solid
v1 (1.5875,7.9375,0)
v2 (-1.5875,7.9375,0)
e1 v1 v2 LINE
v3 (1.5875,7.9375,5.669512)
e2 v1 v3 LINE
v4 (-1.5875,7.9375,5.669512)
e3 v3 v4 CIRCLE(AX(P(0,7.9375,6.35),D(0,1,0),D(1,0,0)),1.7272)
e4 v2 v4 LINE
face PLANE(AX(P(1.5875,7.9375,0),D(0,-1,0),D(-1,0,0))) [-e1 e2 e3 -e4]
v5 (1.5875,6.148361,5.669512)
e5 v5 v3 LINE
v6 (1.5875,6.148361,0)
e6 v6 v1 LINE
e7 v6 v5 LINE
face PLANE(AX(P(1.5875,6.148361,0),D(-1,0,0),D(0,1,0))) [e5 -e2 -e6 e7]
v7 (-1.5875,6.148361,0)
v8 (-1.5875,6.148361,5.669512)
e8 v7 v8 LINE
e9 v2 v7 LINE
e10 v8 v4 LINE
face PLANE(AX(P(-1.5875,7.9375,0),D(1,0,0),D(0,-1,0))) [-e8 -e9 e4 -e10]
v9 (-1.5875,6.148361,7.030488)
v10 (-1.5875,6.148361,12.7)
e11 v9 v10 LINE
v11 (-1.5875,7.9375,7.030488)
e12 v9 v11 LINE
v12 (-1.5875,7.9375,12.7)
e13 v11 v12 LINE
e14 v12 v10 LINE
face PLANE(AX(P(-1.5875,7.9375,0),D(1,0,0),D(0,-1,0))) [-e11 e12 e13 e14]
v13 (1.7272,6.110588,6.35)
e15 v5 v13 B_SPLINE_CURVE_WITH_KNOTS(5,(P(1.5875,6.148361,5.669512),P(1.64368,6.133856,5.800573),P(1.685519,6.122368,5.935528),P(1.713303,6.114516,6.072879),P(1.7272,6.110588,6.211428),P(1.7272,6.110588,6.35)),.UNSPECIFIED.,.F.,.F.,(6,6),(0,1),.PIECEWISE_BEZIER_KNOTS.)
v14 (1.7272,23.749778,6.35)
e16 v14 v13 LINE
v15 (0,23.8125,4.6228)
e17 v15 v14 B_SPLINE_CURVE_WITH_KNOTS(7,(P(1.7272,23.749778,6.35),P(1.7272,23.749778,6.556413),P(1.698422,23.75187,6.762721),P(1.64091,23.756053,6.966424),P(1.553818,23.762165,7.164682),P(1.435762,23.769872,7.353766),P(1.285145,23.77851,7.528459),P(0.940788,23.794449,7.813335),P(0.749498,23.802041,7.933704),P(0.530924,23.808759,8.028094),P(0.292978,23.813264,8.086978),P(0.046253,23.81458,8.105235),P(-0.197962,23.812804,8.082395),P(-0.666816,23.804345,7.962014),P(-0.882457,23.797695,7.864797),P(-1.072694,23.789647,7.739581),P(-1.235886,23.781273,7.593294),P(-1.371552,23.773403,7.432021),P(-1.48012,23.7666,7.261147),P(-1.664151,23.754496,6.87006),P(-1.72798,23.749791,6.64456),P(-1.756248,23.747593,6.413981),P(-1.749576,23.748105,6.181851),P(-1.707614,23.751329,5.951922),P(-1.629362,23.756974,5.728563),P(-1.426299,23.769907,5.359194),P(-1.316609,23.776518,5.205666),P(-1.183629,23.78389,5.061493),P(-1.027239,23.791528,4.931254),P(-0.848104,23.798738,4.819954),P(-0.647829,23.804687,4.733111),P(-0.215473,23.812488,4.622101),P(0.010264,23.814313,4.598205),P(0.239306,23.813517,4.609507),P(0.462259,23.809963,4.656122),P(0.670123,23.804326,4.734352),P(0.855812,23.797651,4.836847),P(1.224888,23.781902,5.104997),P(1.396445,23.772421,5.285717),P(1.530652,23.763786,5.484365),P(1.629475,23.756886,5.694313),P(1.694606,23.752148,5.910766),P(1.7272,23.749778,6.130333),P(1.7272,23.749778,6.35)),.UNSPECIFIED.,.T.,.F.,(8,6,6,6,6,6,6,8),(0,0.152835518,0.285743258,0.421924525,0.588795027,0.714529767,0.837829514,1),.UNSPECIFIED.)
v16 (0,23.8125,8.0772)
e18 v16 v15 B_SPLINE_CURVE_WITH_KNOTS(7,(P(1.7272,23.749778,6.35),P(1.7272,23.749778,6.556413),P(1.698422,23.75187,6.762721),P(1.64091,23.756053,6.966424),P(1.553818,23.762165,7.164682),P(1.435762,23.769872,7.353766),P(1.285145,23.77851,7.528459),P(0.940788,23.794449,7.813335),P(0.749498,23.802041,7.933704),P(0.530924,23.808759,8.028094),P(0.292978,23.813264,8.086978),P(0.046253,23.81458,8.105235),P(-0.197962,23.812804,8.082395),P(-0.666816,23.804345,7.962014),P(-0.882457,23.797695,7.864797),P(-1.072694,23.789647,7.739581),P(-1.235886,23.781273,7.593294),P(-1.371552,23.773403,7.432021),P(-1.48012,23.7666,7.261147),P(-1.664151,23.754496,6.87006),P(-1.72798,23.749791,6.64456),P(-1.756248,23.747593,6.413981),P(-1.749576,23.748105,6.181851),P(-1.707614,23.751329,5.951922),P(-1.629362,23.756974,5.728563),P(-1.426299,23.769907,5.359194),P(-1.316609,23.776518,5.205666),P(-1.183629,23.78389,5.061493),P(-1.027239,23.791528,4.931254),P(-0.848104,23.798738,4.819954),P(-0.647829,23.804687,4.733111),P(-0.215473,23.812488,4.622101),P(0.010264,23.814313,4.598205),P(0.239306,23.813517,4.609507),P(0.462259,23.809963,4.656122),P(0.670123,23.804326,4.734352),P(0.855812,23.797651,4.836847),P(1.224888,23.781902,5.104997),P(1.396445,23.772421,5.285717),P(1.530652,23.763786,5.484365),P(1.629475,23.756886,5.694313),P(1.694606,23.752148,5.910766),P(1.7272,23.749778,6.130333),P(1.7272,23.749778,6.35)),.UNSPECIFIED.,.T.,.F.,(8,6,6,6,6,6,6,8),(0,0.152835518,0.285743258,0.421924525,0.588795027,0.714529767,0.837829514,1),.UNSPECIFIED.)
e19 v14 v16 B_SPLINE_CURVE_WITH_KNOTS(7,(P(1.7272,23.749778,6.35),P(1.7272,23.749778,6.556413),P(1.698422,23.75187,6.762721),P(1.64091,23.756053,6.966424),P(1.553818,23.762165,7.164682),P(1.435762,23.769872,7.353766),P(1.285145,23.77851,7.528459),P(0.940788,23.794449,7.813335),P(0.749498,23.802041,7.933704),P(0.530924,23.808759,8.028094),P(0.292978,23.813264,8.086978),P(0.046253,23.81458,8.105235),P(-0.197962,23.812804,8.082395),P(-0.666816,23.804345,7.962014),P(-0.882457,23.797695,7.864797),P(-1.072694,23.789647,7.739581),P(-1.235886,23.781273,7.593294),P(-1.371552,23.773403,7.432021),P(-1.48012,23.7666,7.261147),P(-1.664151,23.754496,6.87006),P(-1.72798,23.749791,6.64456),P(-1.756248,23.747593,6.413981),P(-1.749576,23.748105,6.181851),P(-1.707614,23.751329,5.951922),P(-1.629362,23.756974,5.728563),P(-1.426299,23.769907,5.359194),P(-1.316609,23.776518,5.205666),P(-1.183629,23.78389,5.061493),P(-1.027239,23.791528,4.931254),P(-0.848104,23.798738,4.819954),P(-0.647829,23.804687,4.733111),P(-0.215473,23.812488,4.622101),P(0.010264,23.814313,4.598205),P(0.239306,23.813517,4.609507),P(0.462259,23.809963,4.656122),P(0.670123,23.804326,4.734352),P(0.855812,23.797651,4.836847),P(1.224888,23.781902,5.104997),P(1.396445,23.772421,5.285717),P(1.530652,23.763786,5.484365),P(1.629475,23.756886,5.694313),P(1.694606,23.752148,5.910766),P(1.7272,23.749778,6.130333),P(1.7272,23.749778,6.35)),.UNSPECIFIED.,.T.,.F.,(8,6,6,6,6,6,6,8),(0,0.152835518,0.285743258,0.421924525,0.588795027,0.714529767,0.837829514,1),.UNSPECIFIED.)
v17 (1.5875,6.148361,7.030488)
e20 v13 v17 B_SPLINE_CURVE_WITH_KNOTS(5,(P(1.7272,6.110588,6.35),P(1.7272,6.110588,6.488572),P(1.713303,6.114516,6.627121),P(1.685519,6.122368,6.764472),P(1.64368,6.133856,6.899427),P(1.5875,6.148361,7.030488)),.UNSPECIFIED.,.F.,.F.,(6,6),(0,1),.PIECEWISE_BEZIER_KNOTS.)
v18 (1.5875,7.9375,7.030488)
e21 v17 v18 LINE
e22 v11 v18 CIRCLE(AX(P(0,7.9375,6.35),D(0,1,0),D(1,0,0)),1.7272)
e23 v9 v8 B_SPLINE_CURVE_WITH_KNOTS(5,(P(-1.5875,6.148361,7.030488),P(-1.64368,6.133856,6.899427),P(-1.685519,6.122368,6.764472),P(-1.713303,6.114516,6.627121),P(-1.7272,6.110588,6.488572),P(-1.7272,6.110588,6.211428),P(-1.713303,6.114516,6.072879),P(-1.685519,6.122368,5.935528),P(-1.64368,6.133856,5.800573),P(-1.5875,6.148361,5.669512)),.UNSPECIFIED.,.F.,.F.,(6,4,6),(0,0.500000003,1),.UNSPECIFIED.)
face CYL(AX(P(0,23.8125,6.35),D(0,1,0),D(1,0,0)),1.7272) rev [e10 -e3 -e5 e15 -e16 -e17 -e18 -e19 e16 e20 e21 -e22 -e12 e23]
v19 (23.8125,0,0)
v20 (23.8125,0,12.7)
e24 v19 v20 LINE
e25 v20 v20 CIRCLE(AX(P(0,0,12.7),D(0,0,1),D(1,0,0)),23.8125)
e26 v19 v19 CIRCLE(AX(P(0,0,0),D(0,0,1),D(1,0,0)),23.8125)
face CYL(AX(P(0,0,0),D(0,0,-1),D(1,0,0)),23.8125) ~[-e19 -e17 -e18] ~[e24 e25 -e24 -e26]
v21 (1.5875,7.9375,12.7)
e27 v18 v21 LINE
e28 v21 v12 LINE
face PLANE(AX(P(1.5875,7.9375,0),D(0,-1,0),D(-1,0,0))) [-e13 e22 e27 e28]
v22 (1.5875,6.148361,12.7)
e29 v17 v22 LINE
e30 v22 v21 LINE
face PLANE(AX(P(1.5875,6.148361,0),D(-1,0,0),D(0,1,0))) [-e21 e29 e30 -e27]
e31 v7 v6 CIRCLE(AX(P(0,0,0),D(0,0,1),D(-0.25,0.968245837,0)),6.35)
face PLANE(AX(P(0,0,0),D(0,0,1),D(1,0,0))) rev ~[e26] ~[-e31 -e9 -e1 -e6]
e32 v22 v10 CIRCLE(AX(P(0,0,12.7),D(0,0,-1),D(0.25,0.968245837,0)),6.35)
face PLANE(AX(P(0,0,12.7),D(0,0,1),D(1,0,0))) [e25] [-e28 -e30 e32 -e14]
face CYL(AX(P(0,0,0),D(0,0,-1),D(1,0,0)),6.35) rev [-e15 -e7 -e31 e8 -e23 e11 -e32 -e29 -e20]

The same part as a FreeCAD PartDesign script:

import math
import FreeCAD as App
import Part
import Sketcher

V = App.Vector
Q = App.Units.Quantity

doc = App.newDocument("Part")
body = doc.addObject("PartDesign::Body", "Body")

sketch1 = body.newObject("Sketcher::SketchObject", "Sketch")
sketch1.AttachmentSupport = (doc.getObject("XY_Plane"), [""])
sketch1.MapMode = "FlatFace"
sketch1.addGeometry(Part.Circle(V(0, 0, 0), V(0, 0, 1), 23.8), False)
sketch1.addGeometry(Part.ArcOfCircle(Part.Circle(V(0, 0, 0), V(0, 0, 1), 6.3), math.radians(104), math.radians(436)), False)
sketch1.addGeometry(Part.LineSegment(V(-1.6, 6.1, 0), V(-1.6, 7.9, 0)), False)
sketch1.addGeometry(Part.LineSegment(V(-1.6, 7.9, 0), V(1.6, 7.9, 0)), False)
sketch1.addGeometry(Part.LineSegment(V(1.6, 7.9, 0), V(1.6, 6.1, 0)), False)
sketch1.addConstraint(Sketcher.Constraint("Coincident", 1, 1, 2, 1))
sketch1.addConstraint(Sketcher.Constraint("Coincident", 2, 2, 3, 1))
sketch1.addConstraint(Sketcher.Constraint("Coincident", 3, 2, 4, 1))
sketch1.addConstraint(Sketcher.Constraint("Coincident", 4, 2, 1, 2))
sketch1.addConstraint(Sketcher.Constraint("Vertical", 2))
sketch1.addConstraint(Sketcher.Constraint("Horizontal", 3))
sketch1.addConstraint(Sketcher.Constraint("Vertical", 4))
sketch1.addConstraint(Sketcher.Constraint("Coincident", 0, 3, -1, 1))
sketch1.addConstraint(Sketcher.Constraint("Coincident", 1, 3, -1, 1))
sketch1.addConstraint(Sketcher.Constraint("Horizontal", 1, 1, 4, 2))
sketch1.addConstraint(Sketcher.Constraint("Radius", 1, Q("0.25 in")))
sketch1.addConstraint(Sketcher.Constraint("Diameter", 0, Q("1.875 in")))
sketch1.addConstraint(Sketcher.Constraint("DistanceX", 3, 1, 3, 2, Q("0.125 in")))
sketch1.addConstraint(Sketcher.Constraint("DistanceY", -1, 1, 2, 2, Q("0.3125 in")))
pad1 = body.newObject("PartDesign::Pad", "Pad")
pad1.Profile = sketch1
pad1.Length = Q("0.5 in")

sketch2 = body.newObject("Sketcher::SketchObject", "Sketch001")
sketch2.AttachmentSupport = (doc.getObject("XZ_Plane"), [""])
sketch2.MapMode = "FlatFace"
sketch2.AttachmentOffset = App.Placement(V(0, 0, -0.9375 * 25.4), App.Rotation())
sketch2.addGeometry(Part.Circle(V(0, 6.3, 0), V(0, 0, 1), 1.7), False)
sketch2.addConstraint(Sketcher.Constraint("PointOnObject", 0, 3, -2))
sketch2.addConstraint(Sketcher.Constraint("Diameter", 0, Q("0.136 in")))
sketch2.addConstraint(Sketcher.Constraint("DistanceY", -1, 1, 0, 3, Q("0.25 in")))
pocket1 = body.newObject("PartDesign::Pocket", "Pocket")
pocket1.Profile = sketch2
pocket1.Length = Q("1 in")
pocket1.Reversed = True

doc.recompute()
